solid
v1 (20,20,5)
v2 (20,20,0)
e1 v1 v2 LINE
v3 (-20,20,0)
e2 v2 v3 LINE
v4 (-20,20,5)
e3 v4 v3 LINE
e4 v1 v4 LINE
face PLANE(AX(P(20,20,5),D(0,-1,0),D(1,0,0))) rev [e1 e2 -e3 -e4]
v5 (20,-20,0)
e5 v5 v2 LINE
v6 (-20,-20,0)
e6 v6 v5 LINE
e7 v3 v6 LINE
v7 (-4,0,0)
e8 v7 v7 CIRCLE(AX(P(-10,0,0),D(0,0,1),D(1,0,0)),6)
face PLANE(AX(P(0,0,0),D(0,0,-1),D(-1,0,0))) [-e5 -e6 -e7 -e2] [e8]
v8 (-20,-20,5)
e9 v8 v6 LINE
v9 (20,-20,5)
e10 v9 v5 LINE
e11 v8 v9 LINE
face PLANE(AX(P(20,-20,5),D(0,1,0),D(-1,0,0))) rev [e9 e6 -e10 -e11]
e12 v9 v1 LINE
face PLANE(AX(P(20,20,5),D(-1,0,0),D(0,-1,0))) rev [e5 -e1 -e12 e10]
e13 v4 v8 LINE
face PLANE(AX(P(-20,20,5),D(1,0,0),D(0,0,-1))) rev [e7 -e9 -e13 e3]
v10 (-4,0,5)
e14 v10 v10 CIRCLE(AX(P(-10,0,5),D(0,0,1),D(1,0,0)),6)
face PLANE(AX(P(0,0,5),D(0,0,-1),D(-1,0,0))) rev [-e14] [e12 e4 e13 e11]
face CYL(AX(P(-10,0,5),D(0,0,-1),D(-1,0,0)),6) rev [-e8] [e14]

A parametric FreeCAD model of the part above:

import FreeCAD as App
import Part
import Sketcher
from FreeCAD import Vector

doc = App.newDocument("Part")
params = doc.addObject("Spreadsheet::Sheet", "Params")
for row, (alias, value) in enumerate([
    ("sketch1_diameter", "12 mm"),
    ("sketch1_width", "40 mm"),
    ("pad1_length", "5 mm"),
], start=1):
    params.set(f"A{row}", alias)
    params.set(f"B{row}", "=" + value)
    params.setAlias(f"B{row}", alias)

body = doc.addObject("PartDesign::Body", "Body")

sketch1 = body.newObject("Sketcher::SketchObject", "Sketch")
sketch1.AttachmentSupport = (doc.getObject("XY_Plane"), [""])
sketch1.MapMode = "FlatFace"
sketch1.addGeometry(Part.LineSegment(Vector(-20, 20, 0), Vector(-20, -20, 0)), False)
sketch1.addGeometry(Part.LineSegment(Vector(-20, -20, 0), Vector(20, -20, 0)), False)
sketch1.addGeometry(Part.LineSegment(Vector(20, -20, 0), Vector(20, 20, 0)), False)
sketch1.addGeometry(Part.LineSegment(Vector(20, 20, 0), Vector(-20, 20, 0)), False)
sketch1.addGeometry(Part.Circle(Vector(-10, 0, 0), Vector(0, 0, 1), 6), False)
sketch1.addConstraint(Sketcher.Constraint("Coincident", 0, 2, 1, 1))
sketch1.addConstraint(Sketcher.Constraint("Coincident", 1, 2, 2, 1))
sketch1.addConstraint(Sketcher.Constraint("Coincident", 2, 2, 3, 1))
sketch1.addConstraint(Sketcher.Constraint("Coincident", 3, 2, 0, 1))
sketch1.addConstraint(Sketcher.Constraint("Vertical", 0))
sketch1.addConstraint(Sketcher.Constraint("Horizontal", 1))
sketch1.addConstraint(Sketcher.Constraint("Vertical", 2))
sketch1.addConstraint(Sketcher.Constraint("Horizontal", 3))
sketch1.addConstraint(Sketcher.Constraint("Symmetric", 0, 2, 2, 2, -1, 1))
sketch1.addConstraint(Sketcher.Constraint("PointOnObject", 4, 3, -1))
sketch1.addConstraint(Sketcher.Constraint("Equal", 3, 0))
sketch1.addConstraint(Sketcher.Constraint("Diameter", 4, 12.0))
sketch1.addConstraint(Sketcher.Constraint("DistanceX", 1, 1, 1, 2, 40.0))
sketch1.addConstraint(Sketcher.Constraint("DistanceX", 4, 3, -1, 1, 10.0))
sketch1.setExpression("Constraints[11]", "Params.sketch1_diameter")
sketch1.setExpression("Constraints[12]", "Params.sketch1_width")
pad1 = body.newObject("PartDesign::Pad", "Pad")
pad1.Profile = sketch1
pad1.setExpression("Length", "Params.pad1_length")

doc.recompute()
